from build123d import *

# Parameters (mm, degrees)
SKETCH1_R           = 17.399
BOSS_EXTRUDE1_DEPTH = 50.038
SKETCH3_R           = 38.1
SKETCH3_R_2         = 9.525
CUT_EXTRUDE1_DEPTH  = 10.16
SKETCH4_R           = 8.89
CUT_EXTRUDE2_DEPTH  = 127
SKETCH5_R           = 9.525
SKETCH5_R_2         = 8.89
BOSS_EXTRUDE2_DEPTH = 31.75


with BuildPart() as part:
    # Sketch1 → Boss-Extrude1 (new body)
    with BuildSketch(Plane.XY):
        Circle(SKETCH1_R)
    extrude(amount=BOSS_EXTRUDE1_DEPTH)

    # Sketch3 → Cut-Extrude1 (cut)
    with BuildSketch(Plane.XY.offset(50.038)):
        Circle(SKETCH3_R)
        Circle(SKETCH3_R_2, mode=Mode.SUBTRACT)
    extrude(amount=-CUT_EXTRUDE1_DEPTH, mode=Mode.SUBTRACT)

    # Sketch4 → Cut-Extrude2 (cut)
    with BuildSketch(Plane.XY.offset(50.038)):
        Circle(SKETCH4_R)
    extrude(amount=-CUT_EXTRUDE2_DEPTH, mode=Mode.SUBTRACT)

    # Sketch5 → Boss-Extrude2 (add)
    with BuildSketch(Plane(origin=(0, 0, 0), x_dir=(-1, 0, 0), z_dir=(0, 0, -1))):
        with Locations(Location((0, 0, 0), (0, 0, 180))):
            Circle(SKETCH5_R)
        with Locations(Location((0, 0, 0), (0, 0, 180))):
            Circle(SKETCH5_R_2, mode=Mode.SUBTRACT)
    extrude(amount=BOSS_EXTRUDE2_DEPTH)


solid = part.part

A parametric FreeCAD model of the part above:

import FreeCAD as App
import Part
import Sketcher

V = App.Vector
Q = App.Units.Quantity

doc = App.newDocument("Part")
params = doc.addObject("Spreadsheet::Sheet", "Params")
for row, (alias, value) in enumerate([
    ("sketch1_diameter", "1.37 in"),
    ("pad1_length", "1.97 in"),
    ("sketch2_diameter", "3 in"),
    ("sketch2_diameter2", "0.75 in"),
    ("pocket1_length", "0.4 in"),
    ("sketch3_diameter", "0.7 in"),
    ("pocket2_length", "5 in"),
    ("sketch4_diameter", "0.7 in"),
    ("sketch4_diameter2", "0.75 in"),
    ("pad2_length", "1.25 in"),
], start=1):
    params.set(f"A{row}", alias)
    params.set(f"B{row}", "=" + value)
    params.setAlias(f"B{row}", alias)

body = doc.addObject("PartDesign::Body", "Body")

# Sketch on XY plane
sketch1 = body.newObject("Sketcher::SketchObject", "Sketch")
sketch1.AttachmentSupport = (doc.getObject("XY_Plane"), [""])
sketch1.MapMode = "FlatFace"
sketch1.addGeometry(Part.Circle(V(0, 0, 0), V(0, 0, 1), 17), False)
sketch1.addConstraint([
    Sketcher.Constraint("Coincident", 0, 3, -1, 1),
    Sketcher.Constraint("Diameter", 0, Q("1.37 in")),
])
sketch1.setExpression("Constraints[1]", "Params.sketch1_diameter")
pad1 = body.newObject("PartDesign::Pad", "Pad")
pad1.Profile = sketch1
pad1.setExpression("Length", "Params.pad1_length")

# Sketch on XY plane
sketch2 = body.newObject("Sketcher::SketchObject", "Sketch001")
sketch2.AttachmentSupport = (doc.getObject("XY_Plane"), [""])
sketch2.MapMode = "FlatFace"
sketch2.AttachmentOffset = App.Placement(V(0, 0, 1.97 * 25.4), App.Rotation())
sketch2.addGeometry([
    Part.Circle(V(0, 0, 0), V(0, 0, 1), 38),
    Part.Circle(V(0, 0, 0), V(0, 0, 1), 10),
], False)
sketch2.addConstraint([
    Sketcher.Constraint("Coincident", 0, 3, -1, 1),
    Sketcher.Constraint("Coincident", 1, 3, -1, 1),
    Sketcher.Constraint("Diameter", 0, Q("3 in")),
    Sketcher.Constraint("Diameter", 1, Q("0.75 in")),
])
sketch2.setExpression("Constraints[2]", "Params.sketch2_diameter")
sketch2.setExpression("Constraints[3]", "Params.sketch2_diameter2")
pocket1 = body.newObject("PartDesign::Pocket", "Pocket")
pocket1.Profile = sketch2
pocket1.setExpression("Length", "Params.pocket1_length")

# Sketch on XY plane
sketch3 = body.newObject("Sketcher::SketchObject", "Sketch002")
sketch3.AttachmentSupport = (doc.getObject("XY_Plane"), [""])
sketch3.MapMode = "FlatFace"
sketch3.AttachmentOffset = App.Placement(V(0, 0, 1.97 * 25.4), App.Rotation())
sketch3.addGeometry(Part.Circle(V(0, 0, 0), V(0, 0, 1), 9), False)
sketch3.addConstraint([
    Sketcher.Constraint("Coincident", 0, 3, -1, 1),
    Sketcher.Constraint("Diameter", 0, Q("0.7 in")),
])
sketch3.setExpression("Constraints[1]", "Params.sketch3_diameter")
pocket2 = body.newObject("PartDesign::Pocket", "Pocket001")
pocket2.Profile = sketch3
pocket2.setExpression("Length", "Params.pocket2_length")

# Sketch on XY plane
sketch4 = body.newObject("Sketcher::SketchObject", "Sketch003")
sketch4.AttachmentSupport = (doc.getObject("XY_Plane"), [""])
sketch4.MapMode = "FlatFace"
sketch4.addGeometry([
    Part.Circle(V(0, 0, 0), V(0, 0, 1), 10),
    Part.Circle(V(0, 0, 0), V(0, 0, 1), 9),
], False)
sketch4.addConstraint([
    Sketcher.Constraint("Coincident", 0, 3, -1, 1),
    Sketcher.Constraint("Coincident", 1, 3, -1, 1),
    Sketcher.Constraint("Diameter", 1, Q("0.7 in")),
    Sketcher.Constraint("Diameter", 0, Q("0.75 in")),
])
sketch4.setExpression("Constraints[2]", "Params.sketch4_diameter")
sketch4.setExpression("Constraints[3]", "Params.sketch4_diameter2")
pad2 = body.newObject("PartDesign::Pad", "Pad001")
pad2.Profile = sketch4
pad2.setExpression("Length", "Params.pad2_length")
pad2.Reversed = True

doc.recompute()
